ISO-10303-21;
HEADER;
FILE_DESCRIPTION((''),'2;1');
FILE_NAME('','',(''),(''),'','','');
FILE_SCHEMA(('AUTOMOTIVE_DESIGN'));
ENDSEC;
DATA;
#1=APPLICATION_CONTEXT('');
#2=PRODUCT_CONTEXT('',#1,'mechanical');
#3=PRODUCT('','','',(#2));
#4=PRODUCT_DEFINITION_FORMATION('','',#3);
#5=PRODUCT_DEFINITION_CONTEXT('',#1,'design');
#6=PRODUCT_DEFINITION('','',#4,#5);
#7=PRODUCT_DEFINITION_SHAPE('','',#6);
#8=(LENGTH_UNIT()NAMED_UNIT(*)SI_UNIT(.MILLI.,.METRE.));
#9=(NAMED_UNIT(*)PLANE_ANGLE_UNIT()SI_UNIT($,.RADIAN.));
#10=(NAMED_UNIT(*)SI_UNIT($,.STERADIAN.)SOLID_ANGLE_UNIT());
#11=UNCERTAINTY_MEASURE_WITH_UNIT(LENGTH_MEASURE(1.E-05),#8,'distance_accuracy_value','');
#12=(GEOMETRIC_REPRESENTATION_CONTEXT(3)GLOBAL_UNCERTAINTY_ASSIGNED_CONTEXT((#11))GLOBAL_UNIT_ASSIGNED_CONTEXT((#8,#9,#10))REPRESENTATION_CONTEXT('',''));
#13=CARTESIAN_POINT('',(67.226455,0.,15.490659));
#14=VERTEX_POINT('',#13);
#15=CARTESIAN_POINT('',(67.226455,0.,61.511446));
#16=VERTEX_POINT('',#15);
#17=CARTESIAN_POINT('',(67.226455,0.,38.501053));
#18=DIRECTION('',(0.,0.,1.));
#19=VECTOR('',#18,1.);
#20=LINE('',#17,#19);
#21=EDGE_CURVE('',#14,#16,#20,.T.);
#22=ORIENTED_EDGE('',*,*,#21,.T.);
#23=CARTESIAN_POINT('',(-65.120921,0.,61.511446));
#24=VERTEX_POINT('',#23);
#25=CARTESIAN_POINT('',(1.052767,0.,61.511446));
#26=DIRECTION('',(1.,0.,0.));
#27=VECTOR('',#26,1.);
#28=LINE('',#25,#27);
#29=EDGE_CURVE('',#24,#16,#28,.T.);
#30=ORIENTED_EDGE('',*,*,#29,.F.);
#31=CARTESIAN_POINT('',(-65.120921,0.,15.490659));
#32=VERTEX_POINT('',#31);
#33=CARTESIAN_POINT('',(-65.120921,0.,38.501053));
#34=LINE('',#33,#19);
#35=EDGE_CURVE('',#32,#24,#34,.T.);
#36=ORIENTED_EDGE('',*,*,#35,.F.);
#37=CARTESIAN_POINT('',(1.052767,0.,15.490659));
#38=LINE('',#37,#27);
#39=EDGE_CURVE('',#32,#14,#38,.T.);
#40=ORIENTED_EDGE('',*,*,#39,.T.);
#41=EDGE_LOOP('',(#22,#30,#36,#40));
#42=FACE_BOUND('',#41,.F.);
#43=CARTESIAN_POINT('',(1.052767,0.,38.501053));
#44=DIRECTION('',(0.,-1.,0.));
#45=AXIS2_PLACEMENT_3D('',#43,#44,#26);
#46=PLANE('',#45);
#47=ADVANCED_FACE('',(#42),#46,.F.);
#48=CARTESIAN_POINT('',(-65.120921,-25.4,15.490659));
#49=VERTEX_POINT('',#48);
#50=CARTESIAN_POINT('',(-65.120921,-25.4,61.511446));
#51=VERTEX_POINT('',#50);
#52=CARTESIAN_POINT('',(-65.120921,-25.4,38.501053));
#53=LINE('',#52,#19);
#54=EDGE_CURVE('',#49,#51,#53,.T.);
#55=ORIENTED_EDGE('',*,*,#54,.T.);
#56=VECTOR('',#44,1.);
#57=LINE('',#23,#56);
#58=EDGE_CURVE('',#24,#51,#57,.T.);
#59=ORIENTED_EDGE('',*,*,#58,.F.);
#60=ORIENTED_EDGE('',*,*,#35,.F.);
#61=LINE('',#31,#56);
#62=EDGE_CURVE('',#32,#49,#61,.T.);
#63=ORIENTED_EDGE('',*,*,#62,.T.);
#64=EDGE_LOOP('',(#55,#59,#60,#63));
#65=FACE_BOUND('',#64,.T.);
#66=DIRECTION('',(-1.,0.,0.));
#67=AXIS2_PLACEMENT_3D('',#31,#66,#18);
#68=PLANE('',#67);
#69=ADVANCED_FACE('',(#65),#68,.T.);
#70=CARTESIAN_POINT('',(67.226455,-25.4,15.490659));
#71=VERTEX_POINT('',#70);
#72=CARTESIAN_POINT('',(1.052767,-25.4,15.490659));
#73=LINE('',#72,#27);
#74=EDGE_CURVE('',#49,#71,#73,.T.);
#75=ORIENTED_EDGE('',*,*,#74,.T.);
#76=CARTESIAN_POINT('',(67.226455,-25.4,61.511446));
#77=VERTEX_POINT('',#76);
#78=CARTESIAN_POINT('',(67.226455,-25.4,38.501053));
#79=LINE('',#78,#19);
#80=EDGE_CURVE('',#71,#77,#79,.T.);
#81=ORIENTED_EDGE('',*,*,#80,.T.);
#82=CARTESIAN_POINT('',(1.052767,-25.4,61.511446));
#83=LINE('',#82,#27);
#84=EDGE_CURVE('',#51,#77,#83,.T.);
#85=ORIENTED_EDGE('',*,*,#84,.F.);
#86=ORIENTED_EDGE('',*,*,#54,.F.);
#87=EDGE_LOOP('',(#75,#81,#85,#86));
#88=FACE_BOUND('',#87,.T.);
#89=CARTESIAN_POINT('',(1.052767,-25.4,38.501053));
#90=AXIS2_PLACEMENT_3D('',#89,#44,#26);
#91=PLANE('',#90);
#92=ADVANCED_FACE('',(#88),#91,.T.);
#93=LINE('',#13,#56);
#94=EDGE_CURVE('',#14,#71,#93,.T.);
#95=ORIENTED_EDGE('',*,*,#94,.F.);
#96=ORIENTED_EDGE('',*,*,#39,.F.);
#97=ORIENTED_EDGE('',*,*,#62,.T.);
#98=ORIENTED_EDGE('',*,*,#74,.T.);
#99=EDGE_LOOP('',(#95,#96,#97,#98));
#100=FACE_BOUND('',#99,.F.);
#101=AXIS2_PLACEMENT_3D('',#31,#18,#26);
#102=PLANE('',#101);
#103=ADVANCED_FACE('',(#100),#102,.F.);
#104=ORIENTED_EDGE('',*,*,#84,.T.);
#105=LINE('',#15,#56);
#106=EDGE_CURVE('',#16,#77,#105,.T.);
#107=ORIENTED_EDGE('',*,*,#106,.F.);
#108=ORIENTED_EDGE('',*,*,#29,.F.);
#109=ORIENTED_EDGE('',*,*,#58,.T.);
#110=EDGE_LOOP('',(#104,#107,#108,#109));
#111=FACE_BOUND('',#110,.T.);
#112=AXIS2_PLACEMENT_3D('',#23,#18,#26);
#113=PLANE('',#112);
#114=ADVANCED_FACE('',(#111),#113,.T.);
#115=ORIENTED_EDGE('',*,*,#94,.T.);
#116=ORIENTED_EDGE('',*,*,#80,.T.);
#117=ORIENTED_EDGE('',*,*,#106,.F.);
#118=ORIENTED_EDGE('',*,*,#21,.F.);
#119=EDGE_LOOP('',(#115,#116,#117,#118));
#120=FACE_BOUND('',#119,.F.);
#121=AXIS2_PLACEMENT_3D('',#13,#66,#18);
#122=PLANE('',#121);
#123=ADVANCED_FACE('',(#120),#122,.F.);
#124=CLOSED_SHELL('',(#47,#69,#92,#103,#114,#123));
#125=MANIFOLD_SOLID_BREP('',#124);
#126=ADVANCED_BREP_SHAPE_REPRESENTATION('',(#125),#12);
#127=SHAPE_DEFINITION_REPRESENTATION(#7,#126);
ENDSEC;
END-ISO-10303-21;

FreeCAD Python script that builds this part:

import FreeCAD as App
import Part
import Sketcher
Q = App.Units.Quantity


def add_polygon(sketch, points):
    """Adds a closed chain of lines whose ends are joined by coincident constraints."""
    first, n = sketch.GeometryCount, len(points)
    for a, b in zip(points, points[1:] + points[:1]):
        sketch.addGeometry(Part.LineSegment(App.Vector(*a, 0), App.Vector(*b, 0)), False)
    for i in range(n):
        sketch.addConstraint(Sketcher.Constraint("Coincident", first + i, 2, first + (i + 1) % n, 1))

doc = App.newDocument("Part")
body = doc.addObject("PartDesign::Body", "Body")

# Sketch on XZ plane
sketch1 = doc.addObject("Sketcher::SketchObject", "Sketch")
body.addObject(sketch1)
sketch1.AttachmentSupport = (doc.XZ_Plane, [""])
sketch1.MapMode = "FlatFace"
sketch1.addGeometry(Part.Circle(App.Vector(-41, 39, 0), App.Vector(0, 0, 1), 18), False)
sketch1.addConstraint([
    Sketcher.Constraint("Diameter", 0, Q("36.85868 mm")),
    Sketcher.Constraint("DistanceX", 0, 3, -1, 1, Q("41.358553 mm")),
    Sketcher.Constraint("DistanceY", -1, 1, 0, 3, Q("39.253026 mm")),
])
pad1 = doc.addObject("PartDesign::Pad", "Pad")
body.addObject(pad1)
pad1.Profile = sketch1
pad1.Length = Q("1 in")

# Sketch on XZ plane
sketch2 = doc.addObject("Sketcher::SketchObject", "Sketch001")
body.addObject(sketch2)
sketch2.AttachmentSupport = (doc.XZ_Plane, [""])
sketch2.MapMode = "FlatFace"
add_polygon(sketch2, [(-65, 62), (-65, 15), (67, 15), (67, 62)])  # lines 0-3
sketch2.addGeometry(Part.Circle(App.Vector(-41, 39, 0), App.Vector(0, 0, 1), 18), False)  # 4
sketch2.addConstraint([
    Sketcher.Constraint("Vertical", 0),
    Sketcher.Constraint("Horizontal", 1),
    Sketcher.Constraint("Vertical", 2),
    Sketcher.Constraint("Horizontal", 3),
    Sketcher.Constraint("Diameter", 4, Q("36.85868 mm")),
    Sketcher.Constraint("DistanceX", 1, 1, 1, 2, Q("132.347376 mm")),
    Sketcher.Constraint("DistanceY", 0, 2, 0, 1, Q("46.020787 mm")),
    Sketcher.Constraint("DistanceX", 0, 2, -1, 1, Q("65.120921 mm")),
    Sketcher.Constraint("DistanceY", -1, 1, 0, 2, Q("15.490659 mm")),
    Sketcher.Constraint("DistanceX", 4, 3, 1, 2, Q("108.585008 mm")),
    Sketcher.Constraint("DistanceY", 4, 3, 2, 2, Q("22.25842 mm")),
])
pad2 = doc.addObject("PartDesign::Pad", "Pad001")
body.addObject(pad2)
pad2.Profile = sketch2
pad2.Length = Q("1 in")

doc.recompute()
